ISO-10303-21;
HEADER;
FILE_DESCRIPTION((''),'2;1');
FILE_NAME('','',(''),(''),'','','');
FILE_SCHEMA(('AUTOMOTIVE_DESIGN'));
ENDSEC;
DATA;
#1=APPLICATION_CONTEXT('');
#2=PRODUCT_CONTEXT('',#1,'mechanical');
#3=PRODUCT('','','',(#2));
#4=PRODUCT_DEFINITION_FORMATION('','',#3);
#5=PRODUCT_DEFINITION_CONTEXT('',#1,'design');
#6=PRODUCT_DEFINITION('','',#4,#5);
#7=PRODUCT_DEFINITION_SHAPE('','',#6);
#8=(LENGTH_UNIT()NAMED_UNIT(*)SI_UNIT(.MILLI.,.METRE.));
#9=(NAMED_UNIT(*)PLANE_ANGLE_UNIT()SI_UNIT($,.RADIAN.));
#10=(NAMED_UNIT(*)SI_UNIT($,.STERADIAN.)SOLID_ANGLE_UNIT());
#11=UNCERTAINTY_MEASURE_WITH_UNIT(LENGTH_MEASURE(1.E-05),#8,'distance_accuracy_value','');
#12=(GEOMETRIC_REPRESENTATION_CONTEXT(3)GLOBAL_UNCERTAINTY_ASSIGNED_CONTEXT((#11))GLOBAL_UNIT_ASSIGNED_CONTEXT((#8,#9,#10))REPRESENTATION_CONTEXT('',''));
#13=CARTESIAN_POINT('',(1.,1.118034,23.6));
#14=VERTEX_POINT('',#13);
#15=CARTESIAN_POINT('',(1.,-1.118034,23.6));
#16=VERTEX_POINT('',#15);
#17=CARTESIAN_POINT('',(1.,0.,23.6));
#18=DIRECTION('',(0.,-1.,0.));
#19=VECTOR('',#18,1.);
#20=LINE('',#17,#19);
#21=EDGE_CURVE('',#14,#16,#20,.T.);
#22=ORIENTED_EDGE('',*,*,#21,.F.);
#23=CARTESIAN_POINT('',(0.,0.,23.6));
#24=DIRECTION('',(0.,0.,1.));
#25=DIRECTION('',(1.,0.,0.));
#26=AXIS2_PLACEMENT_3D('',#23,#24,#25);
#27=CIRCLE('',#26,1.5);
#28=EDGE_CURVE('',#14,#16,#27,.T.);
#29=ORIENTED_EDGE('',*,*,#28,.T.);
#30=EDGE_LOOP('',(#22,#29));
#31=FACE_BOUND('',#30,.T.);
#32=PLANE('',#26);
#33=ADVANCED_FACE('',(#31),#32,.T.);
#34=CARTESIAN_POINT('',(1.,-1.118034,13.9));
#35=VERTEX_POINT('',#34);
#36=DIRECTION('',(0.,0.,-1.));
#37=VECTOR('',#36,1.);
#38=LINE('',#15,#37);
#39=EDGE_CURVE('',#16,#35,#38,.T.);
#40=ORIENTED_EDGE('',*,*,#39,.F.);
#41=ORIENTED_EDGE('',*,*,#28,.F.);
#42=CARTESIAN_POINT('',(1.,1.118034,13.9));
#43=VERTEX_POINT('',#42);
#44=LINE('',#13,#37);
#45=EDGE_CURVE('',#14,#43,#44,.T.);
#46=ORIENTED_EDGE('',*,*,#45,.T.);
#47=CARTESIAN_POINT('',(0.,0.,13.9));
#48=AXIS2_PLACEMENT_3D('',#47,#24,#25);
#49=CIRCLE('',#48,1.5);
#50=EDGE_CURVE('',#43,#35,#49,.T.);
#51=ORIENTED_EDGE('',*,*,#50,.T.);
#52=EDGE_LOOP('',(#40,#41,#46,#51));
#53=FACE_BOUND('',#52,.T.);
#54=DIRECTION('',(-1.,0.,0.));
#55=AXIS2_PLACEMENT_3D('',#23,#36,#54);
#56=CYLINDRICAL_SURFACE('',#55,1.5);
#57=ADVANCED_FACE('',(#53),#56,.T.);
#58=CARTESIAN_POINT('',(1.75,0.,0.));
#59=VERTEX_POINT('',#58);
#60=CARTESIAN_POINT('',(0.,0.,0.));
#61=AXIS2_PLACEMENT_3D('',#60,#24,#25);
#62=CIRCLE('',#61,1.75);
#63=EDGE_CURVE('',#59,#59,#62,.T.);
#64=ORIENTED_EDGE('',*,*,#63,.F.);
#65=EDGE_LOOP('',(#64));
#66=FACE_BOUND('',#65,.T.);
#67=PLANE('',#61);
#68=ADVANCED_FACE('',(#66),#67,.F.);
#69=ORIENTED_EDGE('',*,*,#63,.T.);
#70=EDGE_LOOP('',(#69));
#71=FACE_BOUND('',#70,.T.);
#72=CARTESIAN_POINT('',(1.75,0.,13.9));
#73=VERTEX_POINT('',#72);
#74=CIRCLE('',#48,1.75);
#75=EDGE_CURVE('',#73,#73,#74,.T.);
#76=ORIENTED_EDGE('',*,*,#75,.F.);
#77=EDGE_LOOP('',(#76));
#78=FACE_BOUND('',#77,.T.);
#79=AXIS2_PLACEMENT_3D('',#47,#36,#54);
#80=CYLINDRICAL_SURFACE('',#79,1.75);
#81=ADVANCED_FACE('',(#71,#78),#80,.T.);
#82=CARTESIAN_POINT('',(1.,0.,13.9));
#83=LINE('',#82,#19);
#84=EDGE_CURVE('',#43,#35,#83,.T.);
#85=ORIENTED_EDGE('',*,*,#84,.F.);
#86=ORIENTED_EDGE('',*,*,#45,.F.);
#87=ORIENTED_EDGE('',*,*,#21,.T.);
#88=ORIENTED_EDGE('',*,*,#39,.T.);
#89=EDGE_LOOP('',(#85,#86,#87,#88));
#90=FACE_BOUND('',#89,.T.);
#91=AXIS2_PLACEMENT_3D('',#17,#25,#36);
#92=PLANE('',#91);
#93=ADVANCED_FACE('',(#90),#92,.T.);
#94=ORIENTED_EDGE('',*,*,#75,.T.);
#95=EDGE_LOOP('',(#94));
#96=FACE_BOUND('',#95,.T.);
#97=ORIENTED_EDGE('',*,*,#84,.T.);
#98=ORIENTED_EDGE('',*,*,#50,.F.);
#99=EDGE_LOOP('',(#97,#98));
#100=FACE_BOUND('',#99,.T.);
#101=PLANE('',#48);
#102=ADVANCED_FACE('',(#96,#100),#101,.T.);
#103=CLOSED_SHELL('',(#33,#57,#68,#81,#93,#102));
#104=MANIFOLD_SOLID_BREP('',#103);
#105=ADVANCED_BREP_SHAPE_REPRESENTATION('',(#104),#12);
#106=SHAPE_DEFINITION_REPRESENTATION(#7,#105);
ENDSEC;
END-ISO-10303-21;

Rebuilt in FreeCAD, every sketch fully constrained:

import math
import FreeCAD as App
import Part
import Sketcher
Q = App.Units.Quantity

doc = App.newDocument("Part")
body = doc.addObject("PartDesign::Body", "Body")

# Sketch on XY plane
sketch1 = body.newObject("Sketcher::SketchObject", "Sketch")
sketch1.AttachmentSupport = (doc.getObject("XY_Plane"), [""])
sketch1.MapMode = "FlatFace"
sketch1.addGeometry(Part.Circle(App.Vector(0, 0, 0), App.Vector(0, 0, 1), 1.8), False)
sketch1.addConstraint([
    Sketcher.Constraint("Coincident", 0, 3, -1, 1),
    Sketcher.Constraint("Diameter", 0, Q("3.5 mm")),
])
pad1 = body.newObject("PartDesign::Pad", "Pad")
pad1.Profile = sketch1
pad1.Length = 13.9

# Sketch on XY plane
sketch2 = body.newObject("Sketcher::SketchObject", "Sketch001")
sketch2.AttachmentSupport = (doc.getObject("XY_Plane"), [""])
sketch2.MapMode = "FlatFace"
sketch2.AttachmentOffset = App.Placement(App.Vector(0, 0, 13.9), App.Rotation())
sketch2.addGeometry([
    Part.LineSegment(App.Vector(1, -1.1, 0), App.Vector(1, 1.1, 0)),
    Part.ArcOfCircle(Part.Circle(App.Vector(0, 0, 0), App.Vector(0, 0, 1), 1.5), math.radians(48), math.radians(312)),
], False)
sketch2.addConstraint([
    Sketcher.Constraint("Coincident", 0, 1, 1, 2),
    Sketcher.Constraint("Coincident", 1, 1, 0, 2),
    Sketcher.Constraint("Vertical", 0),
    Sketcher.Constraint("Coincident", 1, 3, -1, 1),
    Sketcher.Constraint("Radius", 1, Q("1.5 mm")),
    Sketcher.Constraint("DistanceX", -1, 1, 0, 1, Q("1 mm")),
])
pad2 = body.newObject("PartDesign::Pad", "Pad001")
pad2.Profile = sketch2
pad2.Length = 9.7

doc.recompute()
